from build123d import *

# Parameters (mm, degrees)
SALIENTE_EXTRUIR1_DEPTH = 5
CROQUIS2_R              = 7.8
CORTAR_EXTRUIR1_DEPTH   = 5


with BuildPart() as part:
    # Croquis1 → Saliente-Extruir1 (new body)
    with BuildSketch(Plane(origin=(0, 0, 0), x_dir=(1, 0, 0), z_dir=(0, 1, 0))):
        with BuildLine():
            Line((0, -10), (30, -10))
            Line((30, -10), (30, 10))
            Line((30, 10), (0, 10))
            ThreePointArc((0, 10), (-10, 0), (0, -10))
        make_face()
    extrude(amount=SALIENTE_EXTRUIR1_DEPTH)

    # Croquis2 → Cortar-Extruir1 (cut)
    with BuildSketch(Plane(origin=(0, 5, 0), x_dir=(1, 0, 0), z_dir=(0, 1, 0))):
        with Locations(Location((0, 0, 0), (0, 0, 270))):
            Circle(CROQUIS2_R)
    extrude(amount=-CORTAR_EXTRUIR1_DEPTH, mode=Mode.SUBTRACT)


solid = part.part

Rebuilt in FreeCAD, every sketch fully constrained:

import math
import FreeCAD as App
import Part
import Sketcher
from FreeCAD import Vector

doc = App.newDocument("Part")
params = doc.addObject("Spreadsheet::Sheet", "Params")
for row, (alias, value) in enumerate([
    ("sketch1_radius", "10 mm"),
    ("sketch1_width", "30 mm"),
    ("pad1_length", "5 mm"),
    ("sketch2_diameter", "15.6 mm"),
    ("pocket1_length", "5 mm"),
], start=1):
    params.set(f"A{row}", alias)
    params.set(f"B{row}", "=" + value)
    params.setAlias(f"B{row}", alias)

body = doc.addObject("PartDesign::Body", "Body")

# Sketch on XZ plane
sketch1 = body.newObject("Sketcher::SketchObject", "Sketch")
sketch1.AttachmentSupport = (doc.getObject("XZ_Plane"), [""])
sketch1.MapMode = "FlatFace"
sketch1.addGeometry(Part.LineSegment(Vector(0, 10, 0), Vector(30, 10, 0)), False)
sketch1.addGeometry(Part.LineSegment(Vector(30, 10, 0), Vector(30, -10, 0)), False)
sketch1.addGeometry(Part.LineSegment(Vector(30, -10, 0), Vector(0, -10, 0)), False)
sketch1.addGeometry(Part.ArcOfCircle(Part.Circle(Vector(0, 0, 0), Vector(0, 0, 1), 10), math.radians(90), math.radians(270)), False)
sketch1.addConstraint(Sketcher.Constraint("Coincident", 0, 2, 1, 1))
sketch1.addConstraint(Sketcher.Constraint("Coincident", 1, 2, 2, 1))
sketch1.addConstraint(Sketcher.Constraint("Tangent", 2, 2, 3, 2))
sketch1.addConstraint(Sketcher.Constraint("Tangent", 3, 1, 0, 1))
sketch1.addConstraint(Sketcher.Constraint("Horizontal", 0))
sketch1.addConstraint(Sketcher.Constraint("Vertical", 1))
sketch1.addConstraint(Sketcher.Constraint("Horizontal", 2))
sketch1.addConstraint(Sketcher.Constraint("Coincident", 3, 3, -1, 1))
sketch1.addConstraint(Sketcher.Constraint("Radius", 3, 10.0))
sketch1.addConstraint(Sketcher.Constraint("DistanceX", 0, 1, 0, 2, 30.0))
sketch1.setExpression("Constraints[8]", "Params.sketch1_radius")
sketch1.setExpression("Constraints[9]", "Params.sketch1_width")
pad1 = body.newObject("PartDesign::Pad", "Pad")
pad1.Profile = sketch1
pad1.setExpression("Length", "Params.pad1_length")
pad1.Reversed = True

# Sketch on XZ plane
sketch2 = body.newObject("Sketcher::SketchObject", "Sketch001")
sketch2.AttachmentSupport = (doc.getObject("XZ_Plane"), [""])
sketch2.MapMode = "FlatFace"
sketch2.AttachmentOffset = App.Placement(Vector(0, 0, -5), App.Rotation())
sketch2.addGeometry(Part.Circle(Vector(0, 0, 0), Vector(0, 0, 1), 8), False)
sketch2.addConstraint(Sketcher.Constraint("Coincident", 0, 3, -1, 1))
sketch2.addConstraint(Sketcher.Constraint("Diameter", 0, 15.6))
sketch2.setExpression("Constraints[1]", "Params.sketch2_diameter")
pocket1 = body.newObject("PartDesign::Pocket", "Pocket")
pocket1.Profile = sketch2
pocket1.setExpression("Length", "Params.pocket1_length")
pocket1.Reversed = True

doc.recompute()
